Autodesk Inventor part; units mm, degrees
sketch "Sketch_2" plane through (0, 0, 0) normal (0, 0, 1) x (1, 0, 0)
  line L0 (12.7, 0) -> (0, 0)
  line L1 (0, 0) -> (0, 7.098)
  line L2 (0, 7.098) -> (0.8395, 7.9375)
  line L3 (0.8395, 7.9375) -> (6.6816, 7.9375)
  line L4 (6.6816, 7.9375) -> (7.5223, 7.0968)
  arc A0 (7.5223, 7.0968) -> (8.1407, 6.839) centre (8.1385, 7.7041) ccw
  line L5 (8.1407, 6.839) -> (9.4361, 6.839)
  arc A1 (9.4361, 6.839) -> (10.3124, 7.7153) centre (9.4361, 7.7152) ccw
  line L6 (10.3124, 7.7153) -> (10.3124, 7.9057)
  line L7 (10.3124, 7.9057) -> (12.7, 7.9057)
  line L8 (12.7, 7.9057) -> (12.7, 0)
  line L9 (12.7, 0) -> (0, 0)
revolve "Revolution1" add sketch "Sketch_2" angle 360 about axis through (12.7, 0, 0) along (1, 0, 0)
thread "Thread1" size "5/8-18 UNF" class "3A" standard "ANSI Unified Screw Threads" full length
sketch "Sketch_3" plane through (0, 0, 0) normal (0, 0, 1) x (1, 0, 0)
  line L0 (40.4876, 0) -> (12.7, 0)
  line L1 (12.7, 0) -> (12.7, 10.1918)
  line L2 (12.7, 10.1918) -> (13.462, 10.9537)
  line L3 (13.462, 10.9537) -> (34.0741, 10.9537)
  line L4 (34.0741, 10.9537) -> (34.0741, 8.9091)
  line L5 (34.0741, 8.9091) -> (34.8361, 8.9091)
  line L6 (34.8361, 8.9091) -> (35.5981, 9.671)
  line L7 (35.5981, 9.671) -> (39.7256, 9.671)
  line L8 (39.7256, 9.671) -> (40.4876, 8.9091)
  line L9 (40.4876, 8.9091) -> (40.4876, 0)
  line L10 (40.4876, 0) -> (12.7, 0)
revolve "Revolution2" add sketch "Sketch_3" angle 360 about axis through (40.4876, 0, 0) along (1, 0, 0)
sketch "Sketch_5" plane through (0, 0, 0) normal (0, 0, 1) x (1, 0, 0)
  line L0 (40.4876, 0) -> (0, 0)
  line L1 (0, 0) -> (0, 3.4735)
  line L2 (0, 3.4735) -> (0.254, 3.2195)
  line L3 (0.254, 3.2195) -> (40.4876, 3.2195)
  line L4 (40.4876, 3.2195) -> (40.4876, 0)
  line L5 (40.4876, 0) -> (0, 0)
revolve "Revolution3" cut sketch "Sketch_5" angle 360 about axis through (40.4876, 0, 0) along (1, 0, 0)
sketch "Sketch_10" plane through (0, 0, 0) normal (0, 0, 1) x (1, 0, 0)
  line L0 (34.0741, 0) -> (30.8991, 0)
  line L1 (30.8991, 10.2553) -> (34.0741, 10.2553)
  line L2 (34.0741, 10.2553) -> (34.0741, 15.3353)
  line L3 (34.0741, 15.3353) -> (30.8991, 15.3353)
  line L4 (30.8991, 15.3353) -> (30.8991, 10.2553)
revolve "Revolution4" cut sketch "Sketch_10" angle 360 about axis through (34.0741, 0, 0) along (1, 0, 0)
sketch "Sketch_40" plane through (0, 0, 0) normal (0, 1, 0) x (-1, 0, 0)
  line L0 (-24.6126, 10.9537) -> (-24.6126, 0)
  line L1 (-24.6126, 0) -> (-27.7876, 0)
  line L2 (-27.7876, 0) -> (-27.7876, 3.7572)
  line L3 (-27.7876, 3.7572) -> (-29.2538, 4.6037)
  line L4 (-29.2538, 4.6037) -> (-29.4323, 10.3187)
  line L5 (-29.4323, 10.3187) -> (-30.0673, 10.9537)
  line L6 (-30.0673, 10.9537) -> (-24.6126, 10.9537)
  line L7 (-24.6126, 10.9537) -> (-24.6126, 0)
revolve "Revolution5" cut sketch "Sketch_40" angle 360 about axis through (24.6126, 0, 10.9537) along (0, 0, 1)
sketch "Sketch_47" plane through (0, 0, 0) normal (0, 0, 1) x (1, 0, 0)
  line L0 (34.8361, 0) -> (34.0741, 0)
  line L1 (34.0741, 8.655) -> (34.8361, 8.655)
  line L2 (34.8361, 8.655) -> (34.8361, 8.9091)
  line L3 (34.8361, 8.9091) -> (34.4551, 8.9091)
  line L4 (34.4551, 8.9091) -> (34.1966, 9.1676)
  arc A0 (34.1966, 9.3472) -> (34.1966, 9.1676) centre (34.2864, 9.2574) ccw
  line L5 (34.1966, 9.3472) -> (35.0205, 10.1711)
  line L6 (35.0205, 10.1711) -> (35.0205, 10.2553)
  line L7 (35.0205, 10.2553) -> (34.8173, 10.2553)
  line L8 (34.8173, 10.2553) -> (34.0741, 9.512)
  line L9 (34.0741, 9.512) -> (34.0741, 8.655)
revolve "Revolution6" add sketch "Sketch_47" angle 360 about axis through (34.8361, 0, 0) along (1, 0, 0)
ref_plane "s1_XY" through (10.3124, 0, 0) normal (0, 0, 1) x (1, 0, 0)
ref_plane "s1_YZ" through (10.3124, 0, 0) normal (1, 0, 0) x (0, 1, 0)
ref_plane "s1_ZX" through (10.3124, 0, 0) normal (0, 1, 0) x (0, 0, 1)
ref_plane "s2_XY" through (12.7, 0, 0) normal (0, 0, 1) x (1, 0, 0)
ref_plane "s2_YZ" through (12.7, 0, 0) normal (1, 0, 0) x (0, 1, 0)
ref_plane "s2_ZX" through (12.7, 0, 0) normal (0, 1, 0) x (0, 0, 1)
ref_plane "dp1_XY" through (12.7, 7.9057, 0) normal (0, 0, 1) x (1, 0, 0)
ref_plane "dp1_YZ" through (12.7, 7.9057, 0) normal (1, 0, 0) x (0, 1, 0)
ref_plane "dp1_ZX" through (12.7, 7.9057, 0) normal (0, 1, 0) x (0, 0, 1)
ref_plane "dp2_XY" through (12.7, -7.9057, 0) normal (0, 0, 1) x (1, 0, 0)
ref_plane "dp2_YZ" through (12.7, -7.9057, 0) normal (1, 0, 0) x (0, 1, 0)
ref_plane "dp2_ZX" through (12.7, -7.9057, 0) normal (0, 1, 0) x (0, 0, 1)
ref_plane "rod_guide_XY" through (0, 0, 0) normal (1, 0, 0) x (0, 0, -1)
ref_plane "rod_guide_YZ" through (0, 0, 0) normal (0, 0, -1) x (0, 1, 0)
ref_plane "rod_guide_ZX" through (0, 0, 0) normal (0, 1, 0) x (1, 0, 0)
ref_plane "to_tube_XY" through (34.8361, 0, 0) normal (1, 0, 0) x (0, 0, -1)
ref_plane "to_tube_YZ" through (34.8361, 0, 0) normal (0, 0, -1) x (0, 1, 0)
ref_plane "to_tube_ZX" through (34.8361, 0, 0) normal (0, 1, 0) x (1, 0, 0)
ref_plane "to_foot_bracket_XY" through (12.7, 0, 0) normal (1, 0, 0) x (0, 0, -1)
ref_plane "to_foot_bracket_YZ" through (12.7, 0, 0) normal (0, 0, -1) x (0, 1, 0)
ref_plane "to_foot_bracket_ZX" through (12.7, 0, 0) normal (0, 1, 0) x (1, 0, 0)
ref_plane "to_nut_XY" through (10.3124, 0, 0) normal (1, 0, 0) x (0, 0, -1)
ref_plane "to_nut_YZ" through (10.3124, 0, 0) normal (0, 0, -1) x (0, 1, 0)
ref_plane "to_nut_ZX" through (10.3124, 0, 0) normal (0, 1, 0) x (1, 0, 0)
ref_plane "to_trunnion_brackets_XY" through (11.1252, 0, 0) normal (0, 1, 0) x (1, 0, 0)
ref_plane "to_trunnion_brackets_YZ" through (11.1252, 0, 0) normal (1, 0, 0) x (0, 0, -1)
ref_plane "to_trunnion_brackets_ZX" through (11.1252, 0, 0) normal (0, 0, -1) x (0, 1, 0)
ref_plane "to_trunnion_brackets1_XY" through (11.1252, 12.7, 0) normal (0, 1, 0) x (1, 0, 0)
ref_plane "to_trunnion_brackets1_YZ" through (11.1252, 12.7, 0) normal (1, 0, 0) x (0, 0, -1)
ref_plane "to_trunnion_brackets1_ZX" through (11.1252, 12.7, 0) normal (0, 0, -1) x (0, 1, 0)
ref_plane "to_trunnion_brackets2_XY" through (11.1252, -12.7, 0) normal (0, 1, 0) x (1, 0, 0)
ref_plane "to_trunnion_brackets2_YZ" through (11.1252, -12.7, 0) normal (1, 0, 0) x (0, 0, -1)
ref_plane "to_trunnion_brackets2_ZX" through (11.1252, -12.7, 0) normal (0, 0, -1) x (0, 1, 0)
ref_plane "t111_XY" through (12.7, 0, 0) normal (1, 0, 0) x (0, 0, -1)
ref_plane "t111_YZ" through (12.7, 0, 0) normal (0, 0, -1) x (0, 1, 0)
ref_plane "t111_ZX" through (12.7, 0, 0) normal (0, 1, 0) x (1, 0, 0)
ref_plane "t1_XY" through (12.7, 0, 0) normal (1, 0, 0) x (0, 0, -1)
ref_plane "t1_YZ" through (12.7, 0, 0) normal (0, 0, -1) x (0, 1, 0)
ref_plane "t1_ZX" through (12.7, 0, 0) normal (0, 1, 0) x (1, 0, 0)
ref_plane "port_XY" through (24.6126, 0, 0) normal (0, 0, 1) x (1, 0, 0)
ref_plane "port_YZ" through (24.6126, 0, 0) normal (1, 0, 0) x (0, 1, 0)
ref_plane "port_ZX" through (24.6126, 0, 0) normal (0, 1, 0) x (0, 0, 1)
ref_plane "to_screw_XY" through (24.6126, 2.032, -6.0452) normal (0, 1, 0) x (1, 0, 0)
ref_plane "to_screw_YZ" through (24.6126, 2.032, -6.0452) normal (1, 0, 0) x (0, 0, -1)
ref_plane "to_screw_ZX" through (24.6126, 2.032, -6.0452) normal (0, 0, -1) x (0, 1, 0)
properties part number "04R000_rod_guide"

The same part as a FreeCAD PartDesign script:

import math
import FreeCAD as App
import Part
import Sketcher
Q = App.Units.Quantity


def add_polygon(sketch, points):
    """Adds a closed chain of lines whose ends are joined by coincident constraints."""
    first, n = sketch.GeometryCount, len(points)
    for a, b in zip(points, points[1:] + points[:1]):
        sketch.addGeometry(Part.LineSegment(App.Vector(*a, 0), App.Vector(*b, 0)), False)
    for i in range(n):
        sketch.addConstraint(Sketcher.Constraint("Coincident", first + i, 2, first + (i + 1) % n, 1))

doc = App.newDocument("Part")
body = doc.addObject("PartDesign::Body", "Body")

# Sketch on XY plane
sketch1 = doc.addObject("Sketcher::SketchObject", "Sketch")
body.addObject(sketch1)
sketch1.AttachmentSupport = (doc.XY_Plane, [""])
sketch1.MapMode = "FlatFace"
sketch1.addGeometry(Part.LineSegment(App.Vector(0, 0, 0), App.Vector(12.7, 0, 0)), False)
sketch1.addGeometry(Part.LineSegment(App.Vector(12.7, 0, 0), App.Vector(12.7, 7.91, 0)), False)
sketch1.addGeometry(Part.LineSegment(App.Vector(12.7, 7.91, 0), App.Vector(10.31, 7.91, 0)), False)
sketch1.addGeometry(Part.LineSegment(App.Vector(10.31, 7.91, 0), App.Vector(10.31, 7.72, 0)), False)
sketch1.addGeometry(Part.ArcOfCircle(Part.Circle(App.Vector(9.44, 7.72, 0), App.Vector(0, 0, 1), 0.88), math.radians(-90), math.radians(0)), False)
sketch1.addGeometry(Part.LineSegment(App.Vector(9.44, 6.84, 0), App.Vector(8.14, 6.84, 0)), False)
sketch1.addGeometry(Part.ArcOfCircle(Part.Circle(App.Vector(8.14, 7.7, 0), App.Vector(0, 0, 1), 0.87), math.radians(-135), math.radians(-90)), False)
sketch1.addGeometry(Part.LineSegment(App.Vector(7.52, 7.1, 0), App.Vector(6.68, 7.94, 0)), False)
sketch1.addGeometry(Part.LineSegment(App.Vector(6.68, 7.94, 0), App.Vector(0.84, 7.94, 0)), False)
sketch1.addGeometry(Part.LineSegment(App.Vector(0.84, 7.94, 0), App.Vector(0, 7.1, 0)), False)
sketch1.addGeometry(Part.LineSegment(App.Vector(0, 7.1, 0), App.Vector(0, 0, 0)), False)
sketch1.addConstraint(Sketcher.Constraint("Coincident", 0, 2, 1, 1))
sketch1.addConstraint(Sketcher.Constraint("Coincident", 1, 2, 2, 1))
sketch1.addConstraint(Sketcher.Constraint("Coincident", 2, 2, 3, 1))
sketch1.addConstraint(Sketcher.Constraint("Tangent", 3, 2, 4, 2))
sketch1.addConstraint(Sketcher.Constraint("Tangent", 4, 1, 5, 1))
sketch1.addConstraint(Sketcher.Constraint("Coincident", 5, 2, 6, 2))
sketch1.addConstraint(Sketcher.Constraint("Coincident", 6, 1, 7, 1))
sketch1.addConstraint(Sketcher.Constraint("Coincident", 7, 2, 8, 1))
sketch1.addConstraint(Sketcher.Constraint("Coincident", 8, 2, 9, 1))
sketch1.addConstraint(Sketcher.Constraint("Coincident", 9, 2, 10, 1))
sketch1.addConstraint(Sketcher.Constraint("Coincident", 10, 2, 0, 1))
sketch1.addConstraint(Sketcher.Constraint("Horizontal", 0))
sketch1.addConstraint(Sketcher.Constraint("Vertical", 1))
sketch1.addConstraint(Sketcher.Constraint("Horizontal", 2))
sketch1.addConstraint(Sketcher.Constraint("Vertical", 3))
sketch1.addConstraint(Sketcher.Constraint("Horizontal", 5))
sketch1.addConstraint(Sketcher.Constraint("Horizontal", 8))
sketch1.addConstraint(Sketcher.Constraint("Vertical", 10))
sketch1.addConstraint(Sketcher.Constraint("Coincident", 10, 2, -1, 1))
sketch1.addConstraint(Sketcher.Constraint("Perpendicular", 7, 9))
sketch1.addConstraint(Sketcher.Constraint("DistanceX", 0, 1, 0, 2, Q("0.5 in")))
sketch1.addConstraint(Sketcher.Constraint("Angle", 7, Q("135 deg")))
sketch1.addConstraint(Sketcher.Constraint("DistanceX", 8, 2, 8, 1, Q("0.23 in")))
sketch1.addConstraint(Sketcher.Constraint("Radius", 4, Q("0.0345 in")))
sketch1.addConstraint(Sketcher.Constraint("DistanceX", 2, 2, 2, 1, Q("0.094 in")))
sketch1.addConstraint(Sketcher.Constraint("DistanceX", 5, 2, 5, 1, Q("0.051 in")))
sketch1.addConstraint(Sketcher.Constraint("Radius", 6, 0.8652))
sketch1.addConstraint(Sketcher.Constraint("DistanceY", 3, 2, 3, 1, Q("0.0075 in")))
sketch1.addConstraint(Sketcher.Constraint("DistanceY", -1, 1, 7, 2, Q("0.3125 in")))
sketch1.addConstraint(Sketcher.Constraint("Distance", 7, Q("0.0468 in")))
sketch1.addConstraint(Sketcher.Constraint("DistanceY", 1, 1, 1, 2, 7.9057))
sketch1.addConstraint(Sketcher.Constraint("DistanceY", 10, 2, 10, 1, 7.098))
revolution = doc.addObject("PartDesign::Revolution", "Revolution")
body.addObject(revolution)
revolution.Profile = sketch1
revolution.ReferenceAxis = (sketch1, ["H_Axis"])
revolution.Angle = 360

# Sketch on XY plane
sketch2 = doc.addObject("Sketcher::SketchObject", "Sketch001")
body.addObject(sketch2)
sketch2.AttachmentSupport = (doc.XY_Plane, [""])
sketch2.MapMode = "FlatFace"
add_polygon(sketch2, [(12.7, 0), (40.5, 0), (40.5, 8.9), (39.7, 9.7), (35.6, 9.7), (34.8, 8.9), (34.1, 8.9), (34.1, 11), (13.5, 11), (12.7, 10.2)])  # lines 0-9
sketch2.addConstraint(Sketcher.Constraint("Horizontal", 0))
sketch2.addConstraint(Sketcher.Constraint("Vertical", 1))
sketch2.addConstraint(Sketcher.Constraint("Horizontal", 3))
sketch2.addConstraint(Sketcher.Constraint("Horizontal", 5))
sketch2.addConstraint(Sketcher.Constraint("Vertical", 6))
sketch2.addConstraint(Sketcher.Constraint("Horizontal", 7))
sketch2.addConstraint(Sketcher.Constraint("Vertical", 9))
sketch2.addConstraint(Sketcher.Constraint("PointOnObject", 0, 2, -1))
sketch2.addConstraint(Sketcher.Constraint("Perpendicular", 2, 4))
sketch2.addConstraint(Sketcher.Constraint("Parallel", 4, 8))
sketch2.addConstraint(Sketcher.Constraint("Horizontal", 1, 2, 4, 2))
sketch2.addConstraint(Sketcher.Constraint("Equal", 2, 4))
sketch2.addConstraint(Sketcher.Constraint("Equal", 4, 8))
sketch2.addConstraint(Sketcher.Constraint("DistanceX", 5, 2, 5, 1, Q("0.03 in")))
sketch2.addConstraint(Sketcher.Constraint("DistanceX", -1, 1, 8, 2, Q("0.5 in")))
sketch2.addConstraint(Sketcher.Constraint("DistanceX", 0, 1, 0, 2, Q("1.094 in")))
sketch2.addConstraint(Sketcher.Constraint("DistanceX", -1, 1, 7, 2, Q("0.53 in")))
sketch2.addConstraint(Sketcher.Constraint("DistanceX", 3, 2, 3, 1, Q("0.1625 in")))
sketch2.addConstraint(Sketcher.Constraint("DistanceY", 6, 1, 6, 2, Q("0.0805 in")))
sketch2.addConstraint(Sketcher.Constraint("DistanceY", 1, 1, 1, 2, 8.909))
revolution2 = doc.addObject("PartDesign::Revolution", "Revolution001")
body.addObject(revolution2)
revolution2.Profile = sketch2
revolution2.ReferenceAxis = (sketch2, ["H_Axis"])
revolution2.Angle = 360

# Sketch on XY plane
sketch3 = doc.addObject("Sketcher::SketchObject", "Sketch002")
body.addObject(sketch3)
sketch3.AttachmentSupport = (doc.XY_Plane, [""])
sketch3.MapMode = "FlatFace"
add_polygon(sketch3, [(0, 0), (40.49, 0), (40.49, 3.22), (0.25, 3.22), (0, 3.47)])  # lines 0-4
sketch3.addConstraint(Sketcher.Constraint("Horizontal", 0))
sketch3.addConstraint(Sketcher.Constraint("Vertical", 1))
sketch3.addConstraint(Sketcher.Constraint("Horizontal", 2))
sketch3.addConstraint(Sketcher.Constraint("Vertical", 4))
sketch3.addConstraint(Sketcher.Constraint("Coincident", 4, 2, -1, 1))
sketch3.addConstraint(Sketcher.Constraint("Angle", 3, Q("135 deg")))
sketch3.addConstraint(Sketcher.Constraint("DistanceX", 0, 1, 0, 2, Q("1.594 in")))
sketch3.addConstraint(Sketcher.Constraint("DistanceX", 2, 2, 2, 1, Q("1.584 in")))
sketch3.addConstraint(Sketcher.Constraint("DistanceY", 1, 1, 1, 2, 3.2195))
groove = doc.addObject("PartDesign::Groove", "Groove")
body.addObject(groove)
groove.Profile = sketch3
groove.ReferenceAxis = (sketch3, ["H_Axis"])
groove.Angle = 360

# Sketch on XY plane
sketch4 = doc.addObject("Sketcher::SketchObject", "Sketch003")
body.addObject(sketch4)
sketch4.AttachmentSupport = (doc.XY_Plane, [""])
sketch4.MapMode = "FlatFace"
add_polygon(sketch4, [(30.9, 15.3), (30.9, 10.3), (34.1, 10.3), (34.1, 15.3)])  # lines 0-3
sketch4.addConstraint(Sketcher.Constraint("Vertical", 0))
sketch4.addConstraint(Sketcher.Constraint("Horizontal", 1))
sketch4.addConstraint(Sketcher.Constraint("Vertical", 2))
sketch4.addConstraint(Sketcher.Constraint("Horizontal", 3))
sketch4.addConstraint(Sketcher.Constraint("DistanceY", 0, 2, 0, 1, Q("0.2 in")))
sketch4.addConstraint(Sketcher.Constraint("DistanceX", 1, 1, 1, 2, Q("0.125 in")))
sketch4.addConstraint(Sketcher.Constraint("DistanceX", -1, 1, 0, 2, Q("1.2165 in")))
sketch4.addConstraint(Sketcher.Constraint("DistanceY", -1, 1, 0, 2, 10.2553))
groove2 = doc.addObject("PartDesign::Groove", "Groove001")
body.addObject(groove2)
groove2.Profile = sketch4
groove2.ReferenceAxis = (sketch4, ["H_Axis"])
groove2.Angle = 360

# Sketch on XZ plane
sketch5 = doc.addObject("Sketcher::SketchObject", "Sketch004")
body.addObject(sketch5)
sketch5.AttachmentSupport = (doc.XZ_Plane, [""])
sketch5.MapMode = "FlatFace"
add_polygon(sketch5, [(24.6, 0), (24.6, 11), (30.1, 11), (29.4, 10.3), (29.3, 4.6), (27.8, 3.8), (27.8, 0)])  # lines 0-6
sketch5.addGeometry(Part.LineSegment(App.Vector(24.6, 0, 0), App.Vector(24.6, 11, 0)), True)  # axis
sketch5.addConstraint(Sketcher.Constraint("Vertical", 0))
sketch5.addConstraint(Sketcher.Constraint("Horizontal", 1))
sketch5.addConstraint(Sketcher.Constraint("Vertical", 5))
sketch5.addConstraint(Sketcher.Constraint("Horizontal", 6))
sketch5.addConstraint(Sketcher.Constraint("Vertical", 7))
sketch5.addConstraint(Sketcher.Constraint("Coincident", 7, 1, 6, 2))
sketch5.addConstraint(Sketcher.Constraint("PointOnObject", 5, 2, -1))
sketch5.addConstraint(Sketcher.Constraint("Horizontal", 1, 2, 7, 2))
sketch5.addConstraint(Sketcher.Constraint("Angle", 2, Q("-135 deg")))
sketch5.addConstraint(Sketcher.Constraint("Angle", 4, Q("-150.0003 deg")))
sketch5.addConstraint(Sketcher.Constraint("DistanceX", 6, 2, 6, 1, Q("0.125 in")))
sketch5.addConstraint(Sketcher.Constraint("Angle", 3, Q("-91.789 deg")))
sketch5.addConstraint(Sketcher.Constraint("DistanceY", 3, 2, 1, 2, Q("0.25 in")))
sketch5.addConstraint(Sketcher.Constraint("DistanceX", -1, 1, 0, 2, Q("0.969 in")))
sketch5.addConstraint(Sketcher.Constraint("DistanceY", -1, 1, 2, 2, Q("0.406248 in")))
sketch5.addConstraint(Sketcher.Constraint("DistanceX", 2, 2, 1, 2, Q("0.025 in")))
sketch5.addConstraint(Sketcher.Constraint("DistanceX", 1, 1, 1, 2, 5.4547))
groove3 = doc.addObject("PartDesign::Groove", "Groove002")
body.addObject(groove3)
groove3.Profile = sketch5
groove3.ReferenceAxis = (sketch5, ["Axis0"])
groove3.Angle = 360

# Sketch on XY plane
sketch6 = doc.addObject("Sketcher::SketchObject", "Sketch005")
body.addObject(sketch6)
sketch6.AttachmentSupport = (doc.XY_Plane, [""])
sketch6.MapMode = "FlatFace"
sketch6.addGeometry(Part.LineSegment(App.Vector(34.07, 9.51, 0), App.Vector(34.07, 8.65, 0)), False)
sketch6.addGeometry(Part.LineSegment(App.Vector(34.07, 8.65, 0), App.Vector(34.84, 8.65, 0)), False)
sketch6.addGeometry(Part.LineSegment(App.Vector(34.84, 8.65, 0), App.Vector(34.84, 8.91, 0)), False)
sketch6.addGeometry(Part.LineSegment(App.Vector(34.84, 8.91, 0), App.Vector(34.46, 8.91, 0)), False)
sketch6.addGeometry(Part.LineSegment(App.Vector(34.46, 8.91, 0), App.Vector(34.2, 9.17, 0)), False)
sketch6.addGeometry(Part.ArcOfCircle(Part.Circle(App.Vector(34.29, 9.26, 0), App.Vector(0, 0, 1), 0.13), math.radians(135), math.radians(225)), False)
sketch6.addGeometry(Part.LineSegment(App.Vector(34.2, 9.35, 0), App.Vector(35.02, 10.17, 0)), False)
sketch6.addGeometry(Part.LineSegment(App.Vector(35.02, 10.17, 0), App.Vector(35.02, 10.26, 0)), False)
sketch6.addGeometry(Part.LineSegment(App.Vector(35.02, 10.26, 0), App.Vector(34.82, 10.26, 0)), False)
sketch6.addGeometry(Part.LineSegment(App.Vector(34.82, 10.26, 0), App.Vector(34.07, 9.51, 0)), False)
sketch6.addConstraint(Sketcher.Constraint("Coincident", 0, 2, 1, 1))
sketch6.addConstraint(Sketcher.Constraint("Coincident", 1, 2, 2, 1))
sketch6.addConstraint(Sketcher.Constraint("Coincident", 2, 2, 3, 1))
sketch6.addConstraint(Sketcher.Constraint("Coincident", 3, 2, 4, 1))
sketch6.addConstraint(Sketcher.Constraint("Tangent", 4, 2, 5, 2))
sketch6.addConstraint(Sketcher.Constraint("Tangent", 5, 1, 6, 1))
sketch6.addConstraint(Sketcher.Constraint("Coincident", 6, 2, 7, 1))
sketch6.addConstraint(Sketcher.Constraint("Coincident", 7, 2, 8, 1))
sketch6.addConstraint(Sketcher.Constraint("Coincident", 8, 2, 9, 1))
sketch6.addConstraint(Sketcher.Constraint("Coincident", 9, 2, 0, 1))
sketch6.addConstraint(Sketcher.Constraint("Vertical", 0))
sketch6.addConstraint(Sketcher.Constraint("Horizontal", 1))
sketch6.addConstraint(Sketcher.Constraint("Vertical", 2))
sketch6.addConstraint(Sketcher.Constraint("Horizontal", 3))
sketch6.addConstraint(Sketcher.Constraint("Vertical", 7))
sketch6.addConstraint(Sketcher.Constraint("Horizontal", 8))
sketch6.addConstraint(Sketcher.Constraint("Perpendicular", 4, 6))
sketch6.addConstraint(Sketcher.Constraint("Parallel", 6, 9))
sketch6.addConstraint(Sketcher.Constraint("Vertical", 4, 2, 5, 1))
sketch6.addConstraint(Sketcher.Constraint("Radius", 5, Q("0.005 in")))
sketch6.addConstraint(Sketcher.Constraint("DistanceX", 1, 1, 1, 2, Q("0.03 in")))
sketch6.addConstraint(Sketcher.Constraint("DistanceY", 2, 1, 2, 2, Q("0.01 in")))
sketch6.addConstraint(Sketcher.Constraint("DistanceX", 3, 2, 3, 1, Q("0.015 in")))
sketch6.addConstraint(Sketcher.Constraint("DistanceX", 8, 2, 8, 1, Q("0.008 in")))
sketch6.addConstraint(Sketcher.Constraint("DistanceY", -1, 1, 5, 1, Q("0.368 in")))
sketch6.addConstraint(Sketcher.Constraint("DistanceY", 2, 2, 7, 2, Q("0.053 in")))
sketch6.addConstraint(Sketcher.Constraint("Distance", 4, Q("0.0144 in")))
sketch6.addConstraint(Sketcher.Constraint("DistanceY", 0, 2, 0, 1, 0.857))
sketch6.addConstraint(Sketcher.Constraint("DistanceX", -1, 1, 0, 2, Q("1.3415 in")))
revolution3 = doc.addObject("PartDesign::Revolution", "Revolution002")
body.addObject(revolution3)
revolution3.Profile = sketch6
revolution3.ReferenceAxis = (sketch6, ["H_Axis"])
revolution3.Angle = 360

doc.recompute()
